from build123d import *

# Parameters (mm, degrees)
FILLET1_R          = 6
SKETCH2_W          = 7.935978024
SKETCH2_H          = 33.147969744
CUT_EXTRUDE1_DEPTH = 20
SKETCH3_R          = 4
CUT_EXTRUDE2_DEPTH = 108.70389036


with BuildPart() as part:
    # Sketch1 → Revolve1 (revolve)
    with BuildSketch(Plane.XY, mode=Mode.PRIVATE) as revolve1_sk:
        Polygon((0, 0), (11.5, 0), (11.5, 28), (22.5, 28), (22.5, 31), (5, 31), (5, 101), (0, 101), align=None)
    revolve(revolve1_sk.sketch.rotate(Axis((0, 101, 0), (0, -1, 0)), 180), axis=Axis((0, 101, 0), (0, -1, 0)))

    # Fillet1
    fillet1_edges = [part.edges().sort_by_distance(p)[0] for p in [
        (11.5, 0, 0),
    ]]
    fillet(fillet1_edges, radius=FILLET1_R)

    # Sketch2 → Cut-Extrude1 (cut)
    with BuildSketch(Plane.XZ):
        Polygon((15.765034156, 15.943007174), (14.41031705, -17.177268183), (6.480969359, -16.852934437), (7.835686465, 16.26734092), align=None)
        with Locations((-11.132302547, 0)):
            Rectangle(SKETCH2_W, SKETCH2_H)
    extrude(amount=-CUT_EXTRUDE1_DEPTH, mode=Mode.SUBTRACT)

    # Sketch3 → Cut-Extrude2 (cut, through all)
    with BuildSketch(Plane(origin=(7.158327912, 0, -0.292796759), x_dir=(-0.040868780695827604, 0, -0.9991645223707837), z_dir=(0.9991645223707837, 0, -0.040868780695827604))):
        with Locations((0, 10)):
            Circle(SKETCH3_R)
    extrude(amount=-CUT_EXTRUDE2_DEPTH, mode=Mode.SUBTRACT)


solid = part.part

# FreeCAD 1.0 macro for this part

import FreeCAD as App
import Part
import Sketcher

V = App.Vector


def edges_at(feature, points):
    """Names of the edges that pass closest to the given points."""
    edges = feature.Shape.Edges
    near = lambda p: min(range(len(edges)), key=lambda i: edges[i].distToShape(Part.Vertex(*p))[0])
    return sorted({f"Edge{near(p) + 1}" for p in points})

doc = App.newDocument("Part")
body = doc.addObject("PartDesign::Body", "Body")

# Sketch on XY plane
sketch1 = body.newObject("Sketcher::SketchObject", "Sketch")
sketch1.AttachmentSupport = (doc.getObject("XY_Plane"), [""])
sketch1.MapMode = "FlatFace"
sketch1.addGeometry([
    Part.LineSegment(V(0, 0, 0), V(11.5, 0, 0)),  # 0
    Part.LineSegment(V(11.5, 0, 0), V(11.5, 28, 0)),  # 1
    Part.LineSegment(V(11.5, 28, 0), V(22.5, 28, 0)),  # 2
    Part.LineSegment(V(22.5, 28, 0), V(22.5, 31, 0)),  # 3
    Part.LineSegment(V(22.5, 31, 0), V(5, 31, 0)),  # 4
    Part.LineSegment(V(5, 31, 0), V(5, 101, 0)),  # 5
    Part.LineSegment(V(5, 101, 0), V(0, 101, 0)),  # 6
    Part.LineSegment(V(0, 101, 0), V(0, 0, 0)),  # 7
], False)
sketch1.addConstraint([
    Sketcher.Constraint("Coincident", 0, 2, 1, 1),
    Sketcher.Constraint("Coincident", 1, 2, 2, 1),
    Sketcher.Constraint("Coincident", 2, 2, 3, 1),
    Sketcher.Constraint("Coincident", 3, 2, 4, 1),
    Sketcher.Constraint("Coincident", 4, 2, 5, 1),
    Sketcher.Constraint("Coincident", 5, 2, 6, 1),
    Sketcher.Constraint("Coincident", 6, 2, 7, 1),
    Sketcher.Constraint("Coincident", 7, 2, 0, 1),
    Sketcher.Constraint("Horizontal", 0),
    Sketcher.Constraint("Vertical", 1),
    Sketcher.Constraint("Horizontal", 2),
    Sketcher.Constraint("Vertical", 3),
    Sketcher.Constraint("Horizontal", 4),
    Sketcher.Constraint("Vertical", 5),
    Sketcher.Constraint("Horizontal", 6),
    Sketcher.Constraint("Vertical", 7),
    Sketcher.Constraint("Coincident", 7, 2, -1, 1),
    Sketcher.Constraint("DistanceX", 2, 1, 2, 2, 11.0),
    Sketcher.Constraint("DistanceX", 6, 2, 6, 1, 5.0),
    Sketcher.Constraint("DistanceY", 1, 1, 1, 2, 28.0),
    Sketcher.Constraint("DistanceY", 3, 1, 3, 2, 3.0),
    Sketcher.Constraint("DistanceY", 5, 1, 5, 2, 70.0),
    Sketcher.Constraint("DistanceX", 0, 1, 0, 2, 11.5),
])
revolution = body.newObject("PartDesign::Revolution", "Revolution")
revolution.Profile = sketch1
revolution.ReferenceAxis = (sketch1, ["V_Axis"])
revolution.Angle = 360
doc.recompute()

fillet = body.newObject("PartDesign::Fillet", "Fillet")
fillet.Base = (revolution, edges_at(revolution, [(11.5, 0, 0)]))
fillet.Radius = 6

# Sketch on XZ plane
sketch2 = body.newObject("Sketcher::SketchObject", "Sketch001")
sketch2.AttachmentSupport = (doc.getObject("XZ_Plane"), [""])
sketch2.MapMode = "FlatFace"
sketch2.addGeometry([
    Part.LineSegment(V(14, -17, 0), V(16, 16, 0)),  # 0
    Part.LineSegment(V(16, 16, 0), V(8, 16, 0)),  # 1
    Part.LineSegment(V(8, 16, 0), V(6, -17, 0)),  # 2
    Part.LineSegment(V(6, -17, 0), V(14, -17, 0)),  # 3
    Part.LineSegment(V(-15, 17, 0), V(-15, -17, 0)),  # 4
    Part.LineSegment(V(-15, -17, 0), V(-7, -17, 0)),  # 5
    Part.LineSegment(V(-7, -17, 0), V(-7, 17, 0)),  # 6
    Part.LineSegment(V(-7, 17, 0), V(-15, 17, 0)),  # 7
], False)
sketch2.addConstraint([
    Sketcher.Constraint("Coincident", 0, 2, 1, 1),
    Sketcher.Constraint("Coincident", 1, 2, 2, 1),
    Sketcher.Constraint("Coincident", 2, 2, 3, 1),
    Sketcher.Constraint("Coincident", 3, 2, 0, 1),
    Sketcher.Constraint("Coincident", 4, 2, 5, 1),
    Sketcher.Constraint("Coincident", 5, 2, 6, 1),
    Sketcher.Constraint("Coincident", 6, 2, 7, 1),
    Sketcher.Constraint("Coincident", 7, 2, 4, 1),
    Sketcher.Constraint("Vertical", 4),
    Sketcher.Constraint("Horizontal", 5),
    Sketcher.Constraint("Vertical", 6),
    Sketcher.Constraint("Horizontal", 7),
    Sketcher.Constraint("Perpendicular", 0, 1),
    Sketcher.Constraint("Perpendicular", 1, 2),
    Sketcher.Constraint("Perpendicular", 2, 3),
    Sketcher.Constraint("DistanceX", 5, 2, 1, 2, 15.0),
    Sketcher.Constraint("DistanceX", 5, 1, 5, 2, 7.935978),
    Sketcher.Constraint("DistanceY", 4, 2, 4, 1, 33.14797),
    Sketcher.Constraint("Distance", 0, 33.14797),
    Sketcher.Constraint("Distance", 1, 7.935978),
    Sketcher.Constraint("DistanceY", -1, 1, 1, 2, 16.267341),
    Sketcher.Constraint("DistanceX", -1, 1, 2, 2, 6.480969),
    Sketcher.Constraint("DistanceY", 3, 2, -1, 1, 17.177268),
    Sketcher.Constraint("DistanceY", 2, 2, 4, 2, 0.27895),
])
pocket1 = body.newObject("PartDesign::Pocket", "Pocket")
pocket1.Profile = sketch2
pocket1.Length = 20

# Sketch on an angled plane
sketch3 = body.newObject("Sketcher::SketchObject", "Sketch002")
sketch3.Placement = App.Placement(V(7.158328, 0, -0.292797), App.Rotation(V(-0.040868781, 0, -0.999164522), V(0, 0.999999999, 0), V(0.999164522, 0, -0.040868781), "ZXY"))
sketch3.addGeometry(Part.Circle(V(0, 10, 0), V(0, 0, 1), 4), False)
sketch3.addConstraint([
    Sketcher.Constraint("PointOnObject", 0, 3, -2),
    Sketcher.Constraint("Diameter", 0, 8.0),
    Sketcher.Constraint("DistanceY", -1, 1, 0, 3, 10.0),
])
pocket2 = body.newObject("PartDesign::Pocket", "Pocket001")
pocket2.Profile = sketch3
pocket2.Type = "ThroughAll"

doc.recompute()
